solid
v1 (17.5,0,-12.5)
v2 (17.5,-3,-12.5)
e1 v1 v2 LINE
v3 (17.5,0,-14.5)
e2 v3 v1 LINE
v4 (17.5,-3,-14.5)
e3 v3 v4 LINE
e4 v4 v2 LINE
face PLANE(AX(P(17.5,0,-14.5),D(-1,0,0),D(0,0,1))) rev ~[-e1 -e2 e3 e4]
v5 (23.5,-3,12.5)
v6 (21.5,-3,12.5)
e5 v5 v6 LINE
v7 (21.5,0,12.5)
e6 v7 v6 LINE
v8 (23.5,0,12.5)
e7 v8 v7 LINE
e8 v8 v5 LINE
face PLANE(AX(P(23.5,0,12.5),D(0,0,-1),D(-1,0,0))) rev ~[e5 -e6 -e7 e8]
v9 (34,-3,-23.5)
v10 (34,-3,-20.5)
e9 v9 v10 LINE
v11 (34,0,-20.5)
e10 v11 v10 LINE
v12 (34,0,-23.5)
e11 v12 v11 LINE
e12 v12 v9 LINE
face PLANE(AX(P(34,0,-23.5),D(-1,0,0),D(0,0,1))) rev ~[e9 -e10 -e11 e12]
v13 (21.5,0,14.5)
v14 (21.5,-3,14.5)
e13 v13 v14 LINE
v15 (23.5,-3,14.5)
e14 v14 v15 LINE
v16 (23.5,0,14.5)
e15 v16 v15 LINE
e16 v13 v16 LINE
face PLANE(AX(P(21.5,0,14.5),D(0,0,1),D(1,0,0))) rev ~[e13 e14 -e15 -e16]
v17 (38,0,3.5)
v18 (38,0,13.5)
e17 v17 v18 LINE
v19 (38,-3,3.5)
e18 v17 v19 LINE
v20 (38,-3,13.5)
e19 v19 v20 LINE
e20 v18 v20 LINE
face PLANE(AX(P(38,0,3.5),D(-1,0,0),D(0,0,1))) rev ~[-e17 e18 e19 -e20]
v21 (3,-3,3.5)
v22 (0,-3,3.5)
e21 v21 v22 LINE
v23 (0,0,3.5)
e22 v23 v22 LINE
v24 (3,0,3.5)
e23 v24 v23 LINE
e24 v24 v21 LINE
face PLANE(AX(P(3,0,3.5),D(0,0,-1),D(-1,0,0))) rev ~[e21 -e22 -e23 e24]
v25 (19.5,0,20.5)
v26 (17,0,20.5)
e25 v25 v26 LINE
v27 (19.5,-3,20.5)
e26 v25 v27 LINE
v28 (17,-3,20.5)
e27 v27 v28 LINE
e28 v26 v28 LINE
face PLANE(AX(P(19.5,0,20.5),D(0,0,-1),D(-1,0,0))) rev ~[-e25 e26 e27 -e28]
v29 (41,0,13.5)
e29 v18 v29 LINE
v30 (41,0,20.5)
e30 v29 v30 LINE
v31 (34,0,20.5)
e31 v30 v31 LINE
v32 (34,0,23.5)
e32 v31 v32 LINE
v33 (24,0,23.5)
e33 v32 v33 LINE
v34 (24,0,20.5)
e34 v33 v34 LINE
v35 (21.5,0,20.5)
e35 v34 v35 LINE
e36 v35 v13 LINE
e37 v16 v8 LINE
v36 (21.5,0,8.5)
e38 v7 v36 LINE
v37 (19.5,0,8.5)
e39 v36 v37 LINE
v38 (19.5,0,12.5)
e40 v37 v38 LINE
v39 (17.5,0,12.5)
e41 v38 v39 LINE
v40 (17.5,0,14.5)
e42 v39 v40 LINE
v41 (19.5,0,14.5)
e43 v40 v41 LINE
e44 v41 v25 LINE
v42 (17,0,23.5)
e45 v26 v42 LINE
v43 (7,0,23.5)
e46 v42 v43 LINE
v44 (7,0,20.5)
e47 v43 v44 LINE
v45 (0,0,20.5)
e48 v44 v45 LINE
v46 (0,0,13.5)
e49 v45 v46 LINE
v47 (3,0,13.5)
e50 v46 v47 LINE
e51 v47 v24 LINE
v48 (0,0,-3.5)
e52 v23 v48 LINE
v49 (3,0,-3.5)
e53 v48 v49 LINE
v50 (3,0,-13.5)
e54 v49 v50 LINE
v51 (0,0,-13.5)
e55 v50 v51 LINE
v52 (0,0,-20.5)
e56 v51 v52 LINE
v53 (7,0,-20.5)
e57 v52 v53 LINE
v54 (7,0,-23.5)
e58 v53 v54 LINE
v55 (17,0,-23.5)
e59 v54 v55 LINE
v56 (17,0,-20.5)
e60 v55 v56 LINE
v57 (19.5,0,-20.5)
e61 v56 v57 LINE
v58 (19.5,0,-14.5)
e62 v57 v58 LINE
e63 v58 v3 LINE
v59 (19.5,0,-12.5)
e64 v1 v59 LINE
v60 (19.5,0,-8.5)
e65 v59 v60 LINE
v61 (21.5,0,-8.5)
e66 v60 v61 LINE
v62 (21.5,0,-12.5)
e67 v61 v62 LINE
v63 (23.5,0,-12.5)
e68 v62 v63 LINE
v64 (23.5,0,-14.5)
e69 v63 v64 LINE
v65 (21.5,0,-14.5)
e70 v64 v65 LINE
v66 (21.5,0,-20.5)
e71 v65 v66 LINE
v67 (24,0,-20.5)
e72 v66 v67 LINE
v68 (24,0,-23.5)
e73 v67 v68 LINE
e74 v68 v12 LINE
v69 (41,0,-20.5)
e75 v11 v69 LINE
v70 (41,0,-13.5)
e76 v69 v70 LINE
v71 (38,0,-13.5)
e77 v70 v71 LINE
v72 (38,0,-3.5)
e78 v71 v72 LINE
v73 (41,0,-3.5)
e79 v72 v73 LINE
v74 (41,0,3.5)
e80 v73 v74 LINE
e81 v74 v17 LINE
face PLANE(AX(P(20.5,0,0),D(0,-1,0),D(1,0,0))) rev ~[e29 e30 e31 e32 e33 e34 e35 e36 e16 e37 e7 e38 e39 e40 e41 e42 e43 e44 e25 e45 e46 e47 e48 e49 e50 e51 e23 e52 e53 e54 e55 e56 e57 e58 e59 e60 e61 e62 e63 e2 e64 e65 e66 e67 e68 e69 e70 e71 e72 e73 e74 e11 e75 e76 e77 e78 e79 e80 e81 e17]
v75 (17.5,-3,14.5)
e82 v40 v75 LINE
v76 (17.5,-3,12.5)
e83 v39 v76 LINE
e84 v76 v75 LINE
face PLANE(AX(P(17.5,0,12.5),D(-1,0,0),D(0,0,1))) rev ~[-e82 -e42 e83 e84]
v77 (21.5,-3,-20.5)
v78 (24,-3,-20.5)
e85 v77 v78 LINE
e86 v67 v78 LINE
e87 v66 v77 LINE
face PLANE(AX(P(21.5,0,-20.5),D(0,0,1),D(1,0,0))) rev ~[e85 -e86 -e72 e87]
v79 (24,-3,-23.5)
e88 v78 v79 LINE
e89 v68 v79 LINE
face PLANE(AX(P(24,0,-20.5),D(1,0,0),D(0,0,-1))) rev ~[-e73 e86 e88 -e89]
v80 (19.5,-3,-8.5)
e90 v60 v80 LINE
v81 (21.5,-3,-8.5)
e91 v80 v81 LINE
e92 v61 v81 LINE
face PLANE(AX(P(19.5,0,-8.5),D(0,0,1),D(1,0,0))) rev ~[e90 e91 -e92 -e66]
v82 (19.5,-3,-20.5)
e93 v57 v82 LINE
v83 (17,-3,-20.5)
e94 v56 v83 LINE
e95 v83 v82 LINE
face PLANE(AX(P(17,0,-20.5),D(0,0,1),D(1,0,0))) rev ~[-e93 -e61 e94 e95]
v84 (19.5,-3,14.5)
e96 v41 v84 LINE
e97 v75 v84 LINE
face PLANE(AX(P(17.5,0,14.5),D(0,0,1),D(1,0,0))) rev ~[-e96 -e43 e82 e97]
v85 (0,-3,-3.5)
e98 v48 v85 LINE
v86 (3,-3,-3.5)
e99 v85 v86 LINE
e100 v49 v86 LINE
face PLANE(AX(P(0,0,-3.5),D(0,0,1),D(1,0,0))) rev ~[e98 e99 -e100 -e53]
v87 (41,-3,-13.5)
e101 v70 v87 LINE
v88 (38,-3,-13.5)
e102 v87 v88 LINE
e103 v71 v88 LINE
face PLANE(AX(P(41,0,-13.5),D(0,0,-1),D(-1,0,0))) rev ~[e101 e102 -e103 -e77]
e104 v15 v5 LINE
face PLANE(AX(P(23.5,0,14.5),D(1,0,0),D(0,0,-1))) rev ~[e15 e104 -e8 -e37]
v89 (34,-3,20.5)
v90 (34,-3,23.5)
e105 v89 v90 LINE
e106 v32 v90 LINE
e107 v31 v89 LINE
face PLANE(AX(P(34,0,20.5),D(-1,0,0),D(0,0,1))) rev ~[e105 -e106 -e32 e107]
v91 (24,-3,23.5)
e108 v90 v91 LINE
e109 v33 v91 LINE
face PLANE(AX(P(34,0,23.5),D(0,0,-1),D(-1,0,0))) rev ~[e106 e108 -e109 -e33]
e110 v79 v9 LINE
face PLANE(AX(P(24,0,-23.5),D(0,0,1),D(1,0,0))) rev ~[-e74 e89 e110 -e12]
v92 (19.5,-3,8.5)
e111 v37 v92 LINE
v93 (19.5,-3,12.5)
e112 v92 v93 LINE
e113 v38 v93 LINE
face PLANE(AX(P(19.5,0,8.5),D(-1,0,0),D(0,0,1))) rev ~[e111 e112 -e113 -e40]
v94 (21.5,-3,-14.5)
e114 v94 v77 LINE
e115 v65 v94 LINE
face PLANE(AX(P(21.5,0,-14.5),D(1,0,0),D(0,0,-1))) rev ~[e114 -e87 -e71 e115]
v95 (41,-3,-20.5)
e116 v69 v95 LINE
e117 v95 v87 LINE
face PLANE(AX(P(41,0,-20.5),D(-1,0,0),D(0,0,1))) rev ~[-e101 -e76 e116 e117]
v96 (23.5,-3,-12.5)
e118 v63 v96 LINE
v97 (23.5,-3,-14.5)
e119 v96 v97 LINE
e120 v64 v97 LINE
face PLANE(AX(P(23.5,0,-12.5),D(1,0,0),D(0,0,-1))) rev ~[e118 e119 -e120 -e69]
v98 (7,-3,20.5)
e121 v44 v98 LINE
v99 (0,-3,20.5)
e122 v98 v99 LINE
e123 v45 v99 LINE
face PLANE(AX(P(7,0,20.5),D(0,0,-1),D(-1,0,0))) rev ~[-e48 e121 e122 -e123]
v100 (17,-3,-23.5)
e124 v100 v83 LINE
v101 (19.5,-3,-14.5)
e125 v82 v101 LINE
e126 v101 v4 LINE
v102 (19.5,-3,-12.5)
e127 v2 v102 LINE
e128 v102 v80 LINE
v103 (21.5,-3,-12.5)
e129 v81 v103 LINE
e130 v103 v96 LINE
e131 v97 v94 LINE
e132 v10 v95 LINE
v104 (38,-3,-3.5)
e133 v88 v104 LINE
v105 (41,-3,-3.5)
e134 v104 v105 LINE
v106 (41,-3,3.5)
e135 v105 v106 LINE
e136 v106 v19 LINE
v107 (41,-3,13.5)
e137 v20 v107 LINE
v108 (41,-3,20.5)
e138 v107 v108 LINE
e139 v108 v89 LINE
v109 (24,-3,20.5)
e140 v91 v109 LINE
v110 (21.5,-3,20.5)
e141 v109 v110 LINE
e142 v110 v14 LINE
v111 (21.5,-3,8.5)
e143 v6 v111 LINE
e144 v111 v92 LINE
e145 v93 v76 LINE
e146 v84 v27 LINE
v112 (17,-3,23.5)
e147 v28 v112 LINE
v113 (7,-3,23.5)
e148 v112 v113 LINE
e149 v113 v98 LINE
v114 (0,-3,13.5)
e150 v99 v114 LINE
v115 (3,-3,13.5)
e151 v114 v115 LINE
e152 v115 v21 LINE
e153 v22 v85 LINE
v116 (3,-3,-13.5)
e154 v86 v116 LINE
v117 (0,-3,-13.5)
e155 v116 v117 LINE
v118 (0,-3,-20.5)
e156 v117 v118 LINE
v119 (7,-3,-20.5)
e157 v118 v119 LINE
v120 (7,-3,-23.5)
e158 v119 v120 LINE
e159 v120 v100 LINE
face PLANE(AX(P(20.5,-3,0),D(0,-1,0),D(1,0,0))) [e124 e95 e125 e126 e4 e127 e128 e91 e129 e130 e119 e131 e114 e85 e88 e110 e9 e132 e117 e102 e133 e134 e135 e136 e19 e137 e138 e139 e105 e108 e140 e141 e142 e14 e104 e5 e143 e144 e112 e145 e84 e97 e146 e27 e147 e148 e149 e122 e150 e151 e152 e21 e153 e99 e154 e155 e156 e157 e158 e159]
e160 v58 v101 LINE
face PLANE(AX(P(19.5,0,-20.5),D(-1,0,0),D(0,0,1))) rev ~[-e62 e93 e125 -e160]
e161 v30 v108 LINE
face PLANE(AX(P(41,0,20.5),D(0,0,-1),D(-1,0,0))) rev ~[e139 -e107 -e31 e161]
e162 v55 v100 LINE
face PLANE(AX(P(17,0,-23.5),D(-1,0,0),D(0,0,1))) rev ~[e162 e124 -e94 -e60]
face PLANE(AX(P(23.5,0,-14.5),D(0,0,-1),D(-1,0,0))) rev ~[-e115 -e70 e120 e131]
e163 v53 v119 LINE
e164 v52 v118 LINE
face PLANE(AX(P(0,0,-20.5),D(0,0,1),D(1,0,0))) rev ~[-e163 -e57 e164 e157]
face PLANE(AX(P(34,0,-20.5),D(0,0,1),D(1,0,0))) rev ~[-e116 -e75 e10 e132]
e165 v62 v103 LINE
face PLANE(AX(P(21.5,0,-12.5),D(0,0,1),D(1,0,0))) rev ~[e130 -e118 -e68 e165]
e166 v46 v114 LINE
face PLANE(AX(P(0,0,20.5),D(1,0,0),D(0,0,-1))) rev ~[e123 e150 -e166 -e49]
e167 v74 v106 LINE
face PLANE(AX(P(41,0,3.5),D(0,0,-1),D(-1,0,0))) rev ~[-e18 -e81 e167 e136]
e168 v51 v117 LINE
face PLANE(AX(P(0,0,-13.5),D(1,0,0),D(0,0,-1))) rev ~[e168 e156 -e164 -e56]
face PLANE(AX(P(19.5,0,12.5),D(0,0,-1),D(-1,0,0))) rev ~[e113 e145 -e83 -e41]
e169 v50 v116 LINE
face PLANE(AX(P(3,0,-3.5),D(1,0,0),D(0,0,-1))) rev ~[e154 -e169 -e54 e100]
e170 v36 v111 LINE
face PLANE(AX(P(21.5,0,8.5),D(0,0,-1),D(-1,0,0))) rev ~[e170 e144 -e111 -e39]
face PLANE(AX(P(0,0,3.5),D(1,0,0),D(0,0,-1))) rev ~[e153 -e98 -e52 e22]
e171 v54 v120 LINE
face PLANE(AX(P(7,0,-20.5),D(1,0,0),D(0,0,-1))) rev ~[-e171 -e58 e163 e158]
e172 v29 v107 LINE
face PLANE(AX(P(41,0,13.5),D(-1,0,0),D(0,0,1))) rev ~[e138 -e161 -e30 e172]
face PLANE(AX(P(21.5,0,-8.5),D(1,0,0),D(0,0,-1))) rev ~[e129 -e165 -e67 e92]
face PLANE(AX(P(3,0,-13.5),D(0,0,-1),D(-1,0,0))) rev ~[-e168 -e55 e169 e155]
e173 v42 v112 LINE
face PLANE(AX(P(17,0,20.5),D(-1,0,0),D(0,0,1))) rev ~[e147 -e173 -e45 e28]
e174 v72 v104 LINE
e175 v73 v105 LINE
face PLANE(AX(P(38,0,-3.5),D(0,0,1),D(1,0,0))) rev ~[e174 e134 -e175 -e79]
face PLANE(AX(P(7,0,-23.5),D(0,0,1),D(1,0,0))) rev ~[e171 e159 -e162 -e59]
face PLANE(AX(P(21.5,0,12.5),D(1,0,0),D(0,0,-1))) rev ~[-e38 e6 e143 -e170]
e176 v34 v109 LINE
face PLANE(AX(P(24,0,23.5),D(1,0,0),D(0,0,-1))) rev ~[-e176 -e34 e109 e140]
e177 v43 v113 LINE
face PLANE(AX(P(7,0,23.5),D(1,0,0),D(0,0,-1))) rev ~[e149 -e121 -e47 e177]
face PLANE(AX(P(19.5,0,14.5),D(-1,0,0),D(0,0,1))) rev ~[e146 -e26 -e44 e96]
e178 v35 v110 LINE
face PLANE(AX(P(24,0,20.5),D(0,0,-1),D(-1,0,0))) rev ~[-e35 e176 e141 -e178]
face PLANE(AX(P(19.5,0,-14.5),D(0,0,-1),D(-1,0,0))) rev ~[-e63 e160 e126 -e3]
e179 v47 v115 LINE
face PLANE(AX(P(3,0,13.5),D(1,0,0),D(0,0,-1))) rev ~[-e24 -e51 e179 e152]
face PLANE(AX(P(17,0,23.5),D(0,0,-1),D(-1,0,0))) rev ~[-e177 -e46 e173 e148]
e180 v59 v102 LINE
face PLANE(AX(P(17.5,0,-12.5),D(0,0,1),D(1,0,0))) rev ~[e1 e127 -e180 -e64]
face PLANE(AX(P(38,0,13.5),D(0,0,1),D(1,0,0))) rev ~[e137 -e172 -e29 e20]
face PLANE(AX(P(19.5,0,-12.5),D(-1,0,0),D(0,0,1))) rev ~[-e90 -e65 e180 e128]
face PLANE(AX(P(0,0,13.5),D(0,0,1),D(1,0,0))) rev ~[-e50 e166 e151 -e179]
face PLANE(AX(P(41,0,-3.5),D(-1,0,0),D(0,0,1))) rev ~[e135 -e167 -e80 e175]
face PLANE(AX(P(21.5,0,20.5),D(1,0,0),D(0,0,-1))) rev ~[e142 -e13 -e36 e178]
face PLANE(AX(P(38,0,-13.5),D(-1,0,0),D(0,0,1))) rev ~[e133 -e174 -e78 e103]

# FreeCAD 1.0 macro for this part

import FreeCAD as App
import Part
import Sketcher

V = App.Vector

doc = App.newDocument("Part")
body = doc.addObject("PartDesign::Body", "Body")

sketch1 = body.newObject("Sketcher::SketchObject", "Sketch")
sketch1.AttachmentSupport = (doc.getObject("XZ_Plane"), [""])
sketch1.MapMode = "FlatFace"
sketch1.addGeometry([
    Part.LineSegment(V(0, 3.5, 0), V(0, -3.5, 0)),
    Part.LineSegment(V(0, -3.5, 0), V(3, -3.5, 0)),
    Part.LineSegment(V(3, -3.5, 0), V(3, -13.5, 0)),
    Part.LineSegment(V(3, -13.5, 0), V(0, -13.5, 0)),
    Part.LineSegment(V(0, -13.5, 0), V(0, -20.5, 0)),
    Part.LineSegment(V(0, -20.5, 0), V(7, -20.5, 0)),
    Part.LineSegment(V(7, -20.5, 0), V(7, -23.5, 0)),
    Part.LineSegment(V(7, -23.5, 0), V(17, -23.5, 0)),
    Part.LineSegment(V(17, -23.5, 0), V(17, -20.5, 0)),
    Part.LineSegment(V(17, -20.5, 0), V(19.5, -20.5, 0)),
    Part.LineSegment(V(19.5, -20.5, 0), V(19.5, -14.5, 0)),
    Part.LineSegment(V(19.5, -14.5, 0), V(17.5, -14.5, 0)),
    Part.LineSegment(V(17.5, -14.5, 0), V(17.5, -12.5, 0)),
    Part.LineSegment(V(17.5, -12.5, 0), V(19.5, -12.5, 0)),
    Part.LineSegment(V(19.5, -12.5, 0), V(19.5, -8.5, 0)),
    Part.LineSegment(V(19.5, -8.5, 0), V(21.5, -8.5, 0)),
    Part.LineSegment(V(21.5, -8.5, 0), V(21.5, -12.5, 0)),
    Part.LineSegment(V(21.5, -12.5, 0), V(23.5, -12.5, 0)),
    Part.LineSegment(V(23.5, -12.5, 0), V(23.5, -14.5, 0)),
    Part.LineSegment(V(23.5, -14.5, 0), V(21.5, -14.5, 0)),
    Part.LineSegment(V(21.5, -14.5, 0), V(21.5, -20.5, 0)),
    Part.LineSegment(V(21.5, -20.5, 0), V(24, -20.5, 0)),
    Part.LineSegment(V(24, -20.5, 0), V(24, -23.5, 0)),
    Part.LineSegment(V(24, -23.5, 0), V(34, -23.5, 0)),
    Part.LineSegment(V(34, -23.5, 0), V(34, -20.5, 0)),
    Part.LineSegment(V(34, -20.5, 0), V(41, -20.5, 0)),
    Part.LineSegment(V(41, -20.5, 0), V(41, -13.5, 0)),
    Part.LineSegment(V(41, -13.5, 0), V(38, -13.5, 0)),
    Part.LineSegment(V(38, -13.5, 0), V(38, -3.5, 0)),
    Part.LineSegment(V(38, -3.5, 0), V(41, -3.5, 0)),
    Part.LineSegment(V(41, -3.5, 0), V(41, 3.5, 0)),
    Part.LineSegment(V(41, 3.5, 0), V(38, 3.5, 0)),
    Part.LineSegment(V(38, 3.5, 0), V(38, 13.5, 0)),
    Part.LineSegment(V(38, 13.5, 0), V(41, 13.5, 0)),
    Part.LineSegment(V(41, 13.5, 0), V(41, 20.5, 0)),
    Part.LineSegment(V(41, 20.5, 0), V(34, 20.5, 0)),
    Part.LineSegment(V(34, 20.5, 0), V(34, 23.5, 0)),
    Part.LineSegment(V(34, 23.5, 0), V(24, 23.5, 0)),
    Part.LineSegment(V(24, 23.5, 0), V(24, 20.5, 0)),
    Part.LineSegment(V(24, 20.5, 0), V(21.5, 20.5, 0)),
    Part.LineSegment(V(21.5, 20.5, 0), V(21.5, 14.5, 0)),
    Part.LineSegment(V(21.5, 14.5, 0), V(23.5, 14.5, 0)),
    Part.LineSegment(V(23.5, 14.5, 0), V(23.5, 12.5, 0)),
    Part.LineSegment(V(23.5, 12.5, 0), V(21.5, 12.5, 0)),
    Part.LineSegment(V(21.5, 12.5, 0), V(21.5, 8.5, 0)),
    Part.LineSegment(V(21.5, 8.5, 0), V(19.5, 8.5, 0)),
    Part.LineSegment(V(19.5, 8.5, 0), V(19.5, 12.5, 0)),
    Part.LineSegment(V(19.5, 12.5, 0), V(17.5, 12.5, 0)),
    Part.LineSegment(V(17.5, 12.5, 0), V(17.5, 14.5, 0)),
    Part.LineSegment(V(17.5, 14.5, 0), V(19.5, 14.5, 0)),
    Part.LineSegment(V(19.5, 14.5, 0), V(19.5, 20.5, 0)),
    Part.LineSegment(V(19.5, 20.5, 0), V(17, 20.5, 0)),
    Part.LineSegment(V(17, 20.5, 0), V(17, 23.5, 0)),
    Part.LineSegment(V(17, 23.5, 0), V(7, 23.5, 0)),
    Part.LineSegment(V(7, 23.5, 0), V(7, 20.5, 0)),
    Part.LineSegment(V(7, 20.5, 0), V(0, 20.5, 0)),
    Part.LineSegment(V(0, 20.5, 0), V(0, 13.5, 0)),
    Part.LineSegment(V(0, 13.5, 0), V(3, 13.5, 0)),
    Part.LineSegment(V(3, 13.5, 0), V(3, 3.5, 0)),
    Part.LineSegment(V(3, 3.5, 0), V(0, 3.5, 0)),
], False)
sketch1.addConstraint([
    Sketcher.Constraint("Coincident", 0, 2, 1, 1),
    Sketcher.Constraint("Coincident", 1, 2, 2, 1),
    Sketcher.Constraint("Coincident", 2, 2, 3, 1),
    Sketcher.Constraint("Coincident", 3, 2, 4, 1),
    Sketcher.Constraint("Coincident", 4, 2, 5, 1),
    Sketcher.Constraint("Coincident", 5, 2, 6, 1),
    Sketcher.Constraint("Coincident", 6, 2, 7, 1),
    Sketcher.Constraint("Coincident", 7, 2, 8, 1),
    Sketcher.Constraint("Coincident", 8, 2, 9, 1),
    Sketcher.Constraint("Coincident", 9, 2, 10, 1),
    Sketcher.Constraint("Coincident", 10, 2, 11, 1),
    Sketcher.Constraint("Coincident", 11, 2, 12, 1),
    Sketcher.Constraint("Coincident", 12, 2, 13, 1),
    Sketcher.Constraint("Coincident", 13, 2, 14, 1),
    Sketcher.Constraint("Coincident", 14, 2, 15, 1),
    Sketcher.Constraint("Coincident", 15, 2, 16, 1),
    Sketcher.Constraint("Coincident", 16, 2, 17, 1),
    Sketcher.Constraint("Coincident", 17, 2, 18, 1),
    Sketcher.Constraint("Coincident", 18, 2, 19, 1),
    Sketcher.Constraint("Coincident", 19, 2, 20, 1),
    Sketcher.Constraint("Coincident", 20, 2, 21, 1),
    Sketcher.Constraint("Coincident", 21, 2, 22, 1),
    Sketcher.Constraint("Coincident", 22, 2, 23, 1),
    Sketcher.Constraint("Coincident", 23, 2, 24, 1),
    Sketcher.Constraint("Coincident", 24, 2, 25, 1),
    Sketcher.Constraint("Coincident", 25, 2, 26, 1),
    Sketcher.Constraint("Coincident", 26, 2, 27, 1),
    Sketcher.Constraint("Coincident", 27, 2, 28, 1),
    Sketcher.Constraint("Coincident", 28, 2, 29, 1),
    Sketcher.Constraint("Coincident", 29, 2, 30, 1),
    Sketcher.Constraint("Coincident", 30, 2, 31, 1),
    Sketcher.Constraint("Coincident", 31, 2, 32, 1),
    Sketcher.Constraint("Coincident", 32, 2, 33, 1),
    Sketcher.Constraint("Coincident", 33, 2, 34, 1),
    Sketcher.Constraint("Coincident", 34, 2, 35, 1),
    Sketcher.Constraint("Coincident", 35, 2, 36, 1),
    Sketcher.Constraint("Coincident", 36, 2, 37, 1),
    Sketcher.Constraint("Coincident", 37, 2, 38, 1),
    Sketcher.Constraint("Coincident", 38, 2, 39, 1),
    Sketcher.Constraint("Coincident", 39, 2, 40, 1),
    Sketcher.Constraint("Coincident", 40, 2, 41, 1),
    Sketcher.Constraint("Coincident", 41, 2, 42, 1),
    Sketcher.Constraint("Coincident", 42, 2, 43, 1),
    Sketcher.Constraint("Coincident", 43, 2, 44, 1),
    Sketcher.Constraint("Coincident", 44, 2, 45, 1),
    Sketcher.Constraint("Coincident", 45, 2, 46, 1),
    Sketcher.Constraint("Coincident", 46, 2, 47, 1),
    Sketcher.Constraint("Coincident", 47, 2, 48, 1),
    Sketcher.Constraint("Coincident", 48, 2, 49, 1),
    Sketcher.Constraint("Coincident", 49, 2, 50, 1),
    Sketcher.Constraint("Coincident", 50, 2, 51, 1),
    Sketcher.Constraint("Coincident", 51, 2, 52, 1),
    Sketcher.Constraint("Coincident", 52, 2, 53, 1),
    Sketcher.Constraint("Coincident", 53, 2, 54, 1),
    Sketcher.Constraint("Coincident", 54, 2, 55, 1),
    Sketcher.Constraint("Coincident", 55, 2, 56, 1),
    Sketcher.Constraint("Coincident", 56, 2, 57, 1),
    Sketcher.Constraint("Coincident", 57, 2, 58, 1),
    Sketcher.Constraint("Coincident", 58, 2, 59, 1),
    Sketcher.Constraint("Coincident", 59, 2, 0, 1),
    Sketcher.Constraint("Vertical", 0),
    Sketcher.Constraint("Horizontal", 1),
    Sketcher.Constraint("Vertical", 2),
    Sketcher.Constraint("Horizontal", 3),
    Sketcher.Constraint("Vertical", 4),
    Sketcher.Constraint("Horizontal", 5),
    Sketcher.Constraint("Vertical", 6),
    Sketcher.Constraint("Horizontal", 7),
    Sketcher.Constraint("Vertical", 8),
    Sketcher.Constraint("Horizontal", 9),
    Sketcher.Constraint("Vertical", 10),
    Sketcher.Constraint("Horizontal", 11),
    Sketcher.Constraint("Vertical", 12),
    Sketcher.Constraint("Horizontal", 13),
    Sketcher.Constraint("Vertical", 14),
    Sketcher.Constraint("Horizontal", 15),
    Sketcher.Constraint("Vertical", 16),
    Sketcher.Constraint("Horizontal", 17),
    Sketcher.Constraint("Vertical", 18),
    Sketcher.Constraint("Horizontal", 19),
    Sketcher.Constraint("Vertical", 20),
    Sketcher.Constraint("Horizontal", 21),
    Sketcher.Constraint("Vertical", 22),
    Sketcher.Constraint("Horizontal", 23),
    Sketcher.Constraint("Vertical", 24),
    Sketcher.Constraint("Horizontal", 25),
    Sketcher.Constraint("Vertical", 26),
    Sketcher.Constraint("Horizontal", 27),
    Sketcher.Constraint("Vertical", 28),
    Sketcher.Constraint("Horizontal", 29),
    Sketcher.Constraint("Vertical", 30),
    Sketcher.Constraint("Horizontal", 31),
    Sketcher.Constraint("Vertical", 32),
    Sketcher.Constraint("Horizontal", 33),
    Sketcher.Constraint("Vertical", 34),
    Sketcher.Constraint("Horizontal", 35),
    Sketcher.Constraint("Vertical", 36),
    Sketcher.Constraint("Horizontal", 37),
    Sketcher.Constraint("Vertical", 38),
    Sketcher.Constraint("Horizontal", 39),
    Sketcher.Constraint("Vertical", 40),
    Sketcher.Constraint("Horizontal", 41),
    Sketcher.Constraint("Vertical", 42),
    Sketcher.Constraint("Horizontal", 43),
    Sketcher.Constraint("Vertical", 44),
    Sketcher.Constraint("Horizontal", 45),
    Sketcher.Constraint("Vertical", 46),
    Sketcher.Constraint("Horizontal", 47),
    Sketcher.Constraint("Vertical", 48),
    Sketcher.Constraint("Horizontal", 49),
    Sketcher.Constraint("Vertical", 50),
    Sketcher.Constraint("Horizontal", 51),
    Sketcher.Constraint("Vertical", 52),
    Sketcher.Constraint("Horizontal", 53),
    Sketcher.Constraint("Vertical", 54),
    Sketcher.Constraint("Horizontal", 55),
    Sketcher.Constraint("Vertical", 56),
    Sketcher.Constraint("Horizontal", 57),
    Sketcher.Constraint("Vertical", 58),
    Sketcher.Constraint("Horizontal", 59),
    Sketcher.Constraint("Symmetric", 4, 2, 55, 2, -1, 1),
    Sketcher.Constraint("Symmetric", 0, 2, 59, 2, -1, 1),
    Sketcher.Constraint("Symmetric", 28, 2, 31, 2, -1),
    Sketcher.Constraint("Symmetric", 26, 2, 33, 2, -1),
    Sketcher.Constraint("Symmetric", 24, 2, 35, 2, -1),
    Sketcher.Constraint("Symmetric", 22, 2, 37, 2, -1),
    Sketcher.Constraint("Symmetric", 20, 2, 39, 2, -1),
    Sketcher.Constraint("Symmetric", 18, 2, 41, 2, -1),
    Sketcher.Constraint("Symmetric", 16, 2, 43, 2, -1),
    Sketcher.Constraint("Symmetric", 14, 2, 45, 2, -1),
    Sketcher.Constraint("Symmetric", 12, 2, 47, 2, -1),
    Sketcher.Constraint("Symmetric", 10, 2, 49, 2, -1),
    Sketcher.Constraint("Symmetric", 8, 2, 51, 2, -1),
    Sketcher.Constraint("Symmetric", 6, 2, 53, 2, -1),
    Sketcher.Constraint("Symmetric", 3, 2, 56, 2, -1),
    Sketcher.Constraint("Horizontal", 5, 2, 8, 2),
    Sketcher.Constraint("Horizontal", 13, 2, 16, 2),
    Sketcher.Constraint("Horizontal", 11, 2, 18, 2),
    Sketcher.Constraint("Horizontal", 9, 2, 20, 2),
    Sketcher.Constraint("Horizontal", 7, 2, 22, 2),
    Sketcher.Constraint("Horizontal", 21, 2, 24, 2),
    Sketcher.Constraint("Horizontal", 3, 2, 26, 2),
    Sketcher.Constraint("Horizontal", 1, 2, 28, 2),
    Sketcher.Constraint("Vertical", 10, 2, 13, 2),
    Sketcher.Constraint("Vertical", 16, 2, 19, 2),
    Sketcher.Constraint("Vertical", 26, 2, 29, 2),
    Sketcher.Constraint("Vertical", 2, 2, 57, 2),
    Sketcher.Constraint("Equal", 13, 15),
    Sketcher.Constraint("Equal", 15, 17),
    Sketcher.Constraint("Equal", 9, 21),
    Sketcher.Constraint("Equal", 7, 23),
    Sketcher.Constraint("Equal", 5, 25),
    Sketcher.Constraint("Equal", 3, 27),
    Sketcher.Constraint("Equal", 55, 0),
    Sketcher.Constraint("Equal", 53, 2),
    Sketcher.Constraint("Equal", 0, 4),
    Sketcher.Constraint("Equal", 59, 6),
    Sketcher.Constraint("Equal", 49, 12),
    Sketcher.Constraint("DistanceX", 1, 1, 1, 2, 3.0),
    Sketcher.Constraint("DistanceX", 5, 1, 5, 2, 7.0),
    Sketcher.Constraint("DistanceX", 7, 1, 7, 2, 10.0),
    Sketcher.Constraint("DistanceX", 11, 2, 11, 1, 2.0),
    Sketcher.Constraint("DistanceY", 10, 1, 10, 2, 6.0),
    Sketcher.Constraint("DistanceY", 14, 1, 14, 2, 4.0),
    Sketcher.Constraint("DistanceX", 9, 1, 9, 2, 2.5),
])
pad1 = body.newObject("PartDesign::Pad", "Pad")
pad1.Profile = sketch1
pad1.Length = 3

doc.recompute()
